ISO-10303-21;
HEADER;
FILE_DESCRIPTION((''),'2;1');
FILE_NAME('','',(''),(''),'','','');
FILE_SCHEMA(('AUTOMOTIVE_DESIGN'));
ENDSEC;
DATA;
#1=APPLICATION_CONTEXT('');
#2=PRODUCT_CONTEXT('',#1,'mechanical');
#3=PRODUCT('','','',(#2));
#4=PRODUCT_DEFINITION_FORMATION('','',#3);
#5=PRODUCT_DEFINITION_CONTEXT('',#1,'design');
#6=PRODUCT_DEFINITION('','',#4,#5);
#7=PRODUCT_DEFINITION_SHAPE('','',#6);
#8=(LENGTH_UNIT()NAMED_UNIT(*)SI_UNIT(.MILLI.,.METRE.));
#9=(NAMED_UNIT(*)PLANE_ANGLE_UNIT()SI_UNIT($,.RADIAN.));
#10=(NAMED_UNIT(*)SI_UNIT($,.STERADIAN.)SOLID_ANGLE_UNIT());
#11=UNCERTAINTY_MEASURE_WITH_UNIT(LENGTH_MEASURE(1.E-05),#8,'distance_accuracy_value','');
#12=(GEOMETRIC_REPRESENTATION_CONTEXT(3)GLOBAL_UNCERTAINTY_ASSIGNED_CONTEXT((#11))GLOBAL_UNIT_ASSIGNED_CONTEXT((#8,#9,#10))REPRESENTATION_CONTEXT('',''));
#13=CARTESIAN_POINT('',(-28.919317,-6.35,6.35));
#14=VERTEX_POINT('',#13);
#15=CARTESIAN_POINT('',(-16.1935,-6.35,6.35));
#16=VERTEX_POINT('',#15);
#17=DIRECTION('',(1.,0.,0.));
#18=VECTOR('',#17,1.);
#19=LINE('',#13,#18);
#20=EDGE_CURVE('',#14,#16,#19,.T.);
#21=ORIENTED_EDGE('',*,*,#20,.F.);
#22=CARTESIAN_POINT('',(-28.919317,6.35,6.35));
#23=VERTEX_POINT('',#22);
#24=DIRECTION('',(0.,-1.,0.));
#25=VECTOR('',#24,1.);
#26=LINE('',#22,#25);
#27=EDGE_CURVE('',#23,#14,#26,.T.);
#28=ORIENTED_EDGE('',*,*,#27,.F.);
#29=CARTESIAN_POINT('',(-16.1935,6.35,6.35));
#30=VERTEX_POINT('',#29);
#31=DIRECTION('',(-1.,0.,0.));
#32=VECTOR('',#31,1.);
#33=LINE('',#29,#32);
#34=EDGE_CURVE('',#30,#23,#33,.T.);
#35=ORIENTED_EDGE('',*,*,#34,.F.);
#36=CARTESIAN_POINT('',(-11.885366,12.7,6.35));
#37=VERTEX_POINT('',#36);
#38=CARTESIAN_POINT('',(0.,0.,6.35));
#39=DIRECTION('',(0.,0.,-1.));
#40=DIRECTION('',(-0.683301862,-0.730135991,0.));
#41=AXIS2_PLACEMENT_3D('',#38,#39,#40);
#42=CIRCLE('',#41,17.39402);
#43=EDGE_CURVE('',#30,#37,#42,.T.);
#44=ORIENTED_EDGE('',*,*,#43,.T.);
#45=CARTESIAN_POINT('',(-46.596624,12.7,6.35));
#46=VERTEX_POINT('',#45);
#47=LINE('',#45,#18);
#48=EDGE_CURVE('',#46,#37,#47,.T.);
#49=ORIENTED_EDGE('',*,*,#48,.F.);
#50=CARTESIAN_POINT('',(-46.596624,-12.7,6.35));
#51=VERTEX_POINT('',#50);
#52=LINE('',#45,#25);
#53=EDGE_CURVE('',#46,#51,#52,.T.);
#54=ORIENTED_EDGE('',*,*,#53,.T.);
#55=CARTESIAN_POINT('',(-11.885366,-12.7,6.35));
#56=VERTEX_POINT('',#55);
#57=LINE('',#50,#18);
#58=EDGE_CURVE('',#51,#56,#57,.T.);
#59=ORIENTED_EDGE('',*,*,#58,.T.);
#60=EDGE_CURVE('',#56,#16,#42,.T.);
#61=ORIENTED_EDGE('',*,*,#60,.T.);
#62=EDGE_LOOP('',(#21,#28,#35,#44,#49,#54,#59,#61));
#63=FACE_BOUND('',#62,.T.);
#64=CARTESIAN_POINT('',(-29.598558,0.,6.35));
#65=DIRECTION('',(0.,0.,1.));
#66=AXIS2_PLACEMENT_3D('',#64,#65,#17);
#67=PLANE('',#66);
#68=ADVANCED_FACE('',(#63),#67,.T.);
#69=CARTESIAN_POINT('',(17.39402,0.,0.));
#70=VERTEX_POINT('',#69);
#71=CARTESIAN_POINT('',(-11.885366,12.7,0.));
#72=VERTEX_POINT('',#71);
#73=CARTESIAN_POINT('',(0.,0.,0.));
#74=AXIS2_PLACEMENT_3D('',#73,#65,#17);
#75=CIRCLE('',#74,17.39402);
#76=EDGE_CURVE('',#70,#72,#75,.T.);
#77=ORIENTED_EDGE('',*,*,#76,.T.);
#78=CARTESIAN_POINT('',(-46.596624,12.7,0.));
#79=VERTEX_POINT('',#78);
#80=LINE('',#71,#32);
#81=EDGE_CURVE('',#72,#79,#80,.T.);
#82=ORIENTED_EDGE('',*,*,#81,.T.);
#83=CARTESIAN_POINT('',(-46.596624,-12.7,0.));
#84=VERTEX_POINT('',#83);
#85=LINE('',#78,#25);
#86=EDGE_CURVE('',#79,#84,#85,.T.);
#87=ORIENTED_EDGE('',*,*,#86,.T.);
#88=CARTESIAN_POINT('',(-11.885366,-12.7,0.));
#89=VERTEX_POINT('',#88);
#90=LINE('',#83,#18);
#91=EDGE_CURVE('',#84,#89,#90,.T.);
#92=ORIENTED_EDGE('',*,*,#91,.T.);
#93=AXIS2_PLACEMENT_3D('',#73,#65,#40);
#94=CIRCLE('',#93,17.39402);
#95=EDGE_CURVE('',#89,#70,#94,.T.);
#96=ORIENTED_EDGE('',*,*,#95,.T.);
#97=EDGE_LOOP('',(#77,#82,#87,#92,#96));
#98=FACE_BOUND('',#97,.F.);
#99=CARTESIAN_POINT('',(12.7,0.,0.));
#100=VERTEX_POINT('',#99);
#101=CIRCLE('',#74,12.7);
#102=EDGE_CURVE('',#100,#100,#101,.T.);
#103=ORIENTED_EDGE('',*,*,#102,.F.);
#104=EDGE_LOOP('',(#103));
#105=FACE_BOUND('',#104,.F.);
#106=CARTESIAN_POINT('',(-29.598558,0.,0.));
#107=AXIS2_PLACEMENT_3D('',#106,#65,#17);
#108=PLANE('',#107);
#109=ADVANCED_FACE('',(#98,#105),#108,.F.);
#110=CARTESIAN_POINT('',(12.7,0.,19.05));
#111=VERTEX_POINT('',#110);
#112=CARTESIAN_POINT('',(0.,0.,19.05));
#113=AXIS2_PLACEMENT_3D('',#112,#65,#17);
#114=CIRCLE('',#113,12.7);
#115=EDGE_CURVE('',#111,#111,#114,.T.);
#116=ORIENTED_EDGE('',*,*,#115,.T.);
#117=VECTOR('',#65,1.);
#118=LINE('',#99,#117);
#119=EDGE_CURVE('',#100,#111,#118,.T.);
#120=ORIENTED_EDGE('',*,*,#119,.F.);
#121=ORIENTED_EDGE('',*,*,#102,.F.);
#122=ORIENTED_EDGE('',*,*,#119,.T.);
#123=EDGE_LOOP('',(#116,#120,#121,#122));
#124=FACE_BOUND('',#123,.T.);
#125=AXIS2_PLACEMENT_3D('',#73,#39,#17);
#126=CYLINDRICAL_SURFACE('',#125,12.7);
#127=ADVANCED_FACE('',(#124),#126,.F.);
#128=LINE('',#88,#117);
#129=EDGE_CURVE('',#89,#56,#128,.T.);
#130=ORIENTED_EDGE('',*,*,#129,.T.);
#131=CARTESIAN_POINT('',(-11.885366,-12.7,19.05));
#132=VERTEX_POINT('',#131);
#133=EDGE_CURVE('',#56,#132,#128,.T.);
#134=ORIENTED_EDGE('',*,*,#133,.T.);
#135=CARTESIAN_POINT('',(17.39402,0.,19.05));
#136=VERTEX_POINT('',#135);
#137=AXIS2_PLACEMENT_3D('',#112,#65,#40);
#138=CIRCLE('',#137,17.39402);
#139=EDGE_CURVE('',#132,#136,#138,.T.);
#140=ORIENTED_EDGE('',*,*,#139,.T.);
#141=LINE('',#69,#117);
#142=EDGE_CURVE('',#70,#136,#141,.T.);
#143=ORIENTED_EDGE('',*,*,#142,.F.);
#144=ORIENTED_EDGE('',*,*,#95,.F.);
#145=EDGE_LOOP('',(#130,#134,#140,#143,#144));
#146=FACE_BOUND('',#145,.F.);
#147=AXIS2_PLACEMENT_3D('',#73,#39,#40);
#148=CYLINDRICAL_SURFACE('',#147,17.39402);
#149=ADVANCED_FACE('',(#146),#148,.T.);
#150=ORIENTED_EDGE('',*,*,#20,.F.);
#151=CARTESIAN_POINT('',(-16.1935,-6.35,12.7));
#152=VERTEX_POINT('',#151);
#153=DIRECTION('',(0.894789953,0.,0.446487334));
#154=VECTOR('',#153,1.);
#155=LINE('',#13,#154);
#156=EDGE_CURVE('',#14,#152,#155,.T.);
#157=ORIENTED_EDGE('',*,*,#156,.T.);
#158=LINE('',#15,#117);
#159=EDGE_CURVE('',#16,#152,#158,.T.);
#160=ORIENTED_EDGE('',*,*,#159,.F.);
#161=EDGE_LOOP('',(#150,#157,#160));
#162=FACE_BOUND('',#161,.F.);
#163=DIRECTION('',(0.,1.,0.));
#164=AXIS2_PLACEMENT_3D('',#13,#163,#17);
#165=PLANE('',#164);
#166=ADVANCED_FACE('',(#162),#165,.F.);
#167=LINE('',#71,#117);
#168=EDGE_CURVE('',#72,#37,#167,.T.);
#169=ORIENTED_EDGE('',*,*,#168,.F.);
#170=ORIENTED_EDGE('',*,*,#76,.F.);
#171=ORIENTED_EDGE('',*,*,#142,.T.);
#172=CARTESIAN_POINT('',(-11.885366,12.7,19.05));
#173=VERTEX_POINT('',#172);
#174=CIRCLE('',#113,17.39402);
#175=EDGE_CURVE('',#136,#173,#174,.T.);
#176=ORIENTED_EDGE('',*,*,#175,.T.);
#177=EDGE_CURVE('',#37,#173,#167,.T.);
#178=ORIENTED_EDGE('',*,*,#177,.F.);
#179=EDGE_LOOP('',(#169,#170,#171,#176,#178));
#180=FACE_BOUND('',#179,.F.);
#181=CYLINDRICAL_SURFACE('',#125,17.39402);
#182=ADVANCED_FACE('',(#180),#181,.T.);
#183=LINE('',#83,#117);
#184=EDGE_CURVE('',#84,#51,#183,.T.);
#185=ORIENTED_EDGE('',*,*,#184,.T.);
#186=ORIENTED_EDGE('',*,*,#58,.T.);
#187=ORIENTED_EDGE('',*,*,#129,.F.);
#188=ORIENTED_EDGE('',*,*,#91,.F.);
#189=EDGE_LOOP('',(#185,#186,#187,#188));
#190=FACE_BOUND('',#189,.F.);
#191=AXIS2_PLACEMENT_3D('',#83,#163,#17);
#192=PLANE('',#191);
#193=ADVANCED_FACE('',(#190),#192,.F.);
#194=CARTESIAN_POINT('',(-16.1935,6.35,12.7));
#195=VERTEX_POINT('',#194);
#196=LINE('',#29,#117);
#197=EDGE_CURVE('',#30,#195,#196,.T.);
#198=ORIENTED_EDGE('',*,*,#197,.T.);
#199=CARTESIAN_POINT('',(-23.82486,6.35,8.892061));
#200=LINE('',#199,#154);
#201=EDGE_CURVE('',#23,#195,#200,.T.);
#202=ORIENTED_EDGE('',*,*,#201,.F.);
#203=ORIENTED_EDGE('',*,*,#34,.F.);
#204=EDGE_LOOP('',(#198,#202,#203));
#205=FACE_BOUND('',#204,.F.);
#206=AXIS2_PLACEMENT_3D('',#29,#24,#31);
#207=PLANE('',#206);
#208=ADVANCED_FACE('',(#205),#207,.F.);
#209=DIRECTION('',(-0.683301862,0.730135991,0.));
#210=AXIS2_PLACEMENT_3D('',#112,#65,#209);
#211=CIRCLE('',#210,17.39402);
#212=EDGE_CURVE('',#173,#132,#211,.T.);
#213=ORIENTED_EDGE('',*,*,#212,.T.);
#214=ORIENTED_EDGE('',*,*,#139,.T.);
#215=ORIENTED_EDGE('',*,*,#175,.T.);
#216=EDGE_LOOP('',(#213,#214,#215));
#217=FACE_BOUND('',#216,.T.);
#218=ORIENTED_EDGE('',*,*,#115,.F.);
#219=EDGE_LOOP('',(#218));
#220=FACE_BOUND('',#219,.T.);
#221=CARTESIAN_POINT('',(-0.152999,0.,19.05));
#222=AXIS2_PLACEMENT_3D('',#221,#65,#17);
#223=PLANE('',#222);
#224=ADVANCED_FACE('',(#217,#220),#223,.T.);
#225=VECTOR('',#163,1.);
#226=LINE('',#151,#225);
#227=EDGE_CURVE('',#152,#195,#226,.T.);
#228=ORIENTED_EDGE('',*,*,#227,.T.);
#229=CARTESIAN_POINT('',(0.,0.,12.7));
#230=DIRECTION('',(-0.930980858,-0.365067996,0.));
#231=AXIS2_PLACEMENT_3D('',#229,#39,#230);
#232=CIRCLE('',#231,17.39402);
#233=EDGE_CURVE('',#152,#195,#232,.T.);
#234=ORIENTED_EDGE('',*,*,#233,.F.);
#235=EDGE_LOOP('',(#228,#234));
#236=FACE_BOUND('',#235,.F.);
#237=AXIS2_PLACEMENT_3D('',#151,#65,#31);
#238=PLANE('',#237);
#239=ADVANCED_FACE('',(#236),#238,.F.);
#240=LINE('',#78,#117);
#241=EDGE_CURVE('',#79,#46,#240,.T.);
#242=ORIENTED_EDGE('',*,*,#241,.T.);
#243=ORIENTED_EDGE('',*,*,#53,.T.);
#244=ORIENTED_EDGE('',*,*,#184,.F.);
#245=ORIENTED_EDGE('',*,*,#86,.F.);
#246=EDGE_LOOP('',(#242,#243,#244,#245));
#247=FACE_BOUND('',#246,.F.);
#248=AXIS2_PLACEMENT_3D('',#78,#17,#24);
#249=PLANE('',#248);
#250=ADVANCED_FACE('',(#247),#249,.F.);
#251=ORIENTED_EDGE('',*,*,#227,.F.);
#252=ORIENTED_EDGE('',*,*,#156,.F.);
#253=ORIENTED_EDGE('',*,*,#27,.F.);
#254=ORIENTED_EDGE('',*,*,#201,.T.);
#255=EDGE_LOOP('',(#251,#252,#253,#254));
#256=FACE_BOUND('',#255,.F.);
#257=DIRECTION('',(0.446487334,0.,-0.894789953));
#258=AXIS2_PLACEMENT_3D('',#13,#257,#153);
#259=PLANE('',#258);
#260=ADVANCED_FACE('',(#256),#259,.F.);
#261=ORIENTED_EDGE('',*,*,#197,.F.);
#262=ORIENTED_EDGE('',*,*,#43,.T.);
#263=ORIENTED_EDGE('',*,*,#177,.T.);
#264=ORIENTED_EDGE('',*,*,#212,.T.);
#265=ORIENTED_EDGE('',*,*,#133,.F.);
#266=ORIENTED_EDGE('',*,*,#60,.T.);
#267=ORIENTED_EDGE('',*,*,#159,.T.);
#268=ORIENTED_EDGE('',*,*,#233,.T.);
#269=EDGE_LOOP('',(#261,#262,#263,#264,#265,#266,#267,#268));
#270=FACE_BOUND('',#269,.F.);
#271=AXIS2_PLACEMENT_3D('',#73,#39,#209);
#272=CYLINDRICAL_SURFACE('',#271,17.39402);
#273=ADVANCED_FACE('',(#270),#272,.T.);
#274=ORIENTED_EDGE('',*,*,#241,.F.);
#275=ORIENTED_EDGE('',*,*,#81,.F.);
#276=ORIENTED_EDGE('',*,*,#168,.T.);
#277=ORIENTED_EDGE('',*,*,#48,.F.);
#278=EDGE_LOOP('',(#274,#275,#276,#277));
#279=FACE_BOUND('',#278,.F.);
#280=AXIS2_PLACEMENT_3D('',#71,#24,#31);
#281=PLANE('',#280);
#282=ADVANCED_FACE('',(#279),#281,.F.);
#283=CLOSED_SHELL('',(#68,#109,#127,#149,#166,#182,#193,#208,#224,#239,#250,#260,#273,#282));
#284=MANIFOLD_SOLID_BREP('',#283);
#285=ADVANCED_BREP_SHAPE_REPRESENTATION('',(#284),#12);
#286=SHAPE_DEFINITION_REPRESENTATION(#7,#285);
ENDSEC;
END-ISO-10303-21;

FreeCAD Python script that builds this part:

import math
import FreeCAD as App
import Part
import Sketcher

V = App.Vector
Q = App.Units.Quantity

doc = App.newDocument("Part")
body = doc.addObject("PartDesign::Body", "Body")

# Sketch on XY plane
sketch1 = body.newObject("Sketcher::SketchObject", "Sketch")
sketch1.AttachmentSupport = (doc.getObject("XY_Plane"), [""])
sketch1.MapMode = "FlatFace"
sketch1.addGeometry([
    Part.ArcOfCircle(Part.Circle(V(0, 0, 0), V(0, 0, 1), 17), math.radians(-133), math.radians(0)),
    Part.ArcOfCircle(Part.Circle(V(0, 0, 0), V(0, 0, 1), 17), math.radians(0), math.radians(133)),
    Part.ArcOfCircle(Part.Circle(V(0, 0, 0), V(0, 0, 1), 17), math.radians(133), math.radians(227)),
    Part.Circle(V(0, 0, 0), V(0, 0, 1), 13),
], False)
sketch1.addConstraint([
    Sketcher.Constraint("Tangent", 0, 2, 1, 1),
    Sketcher.Constraint("Tangent", 1, 2, 2, 1),
    Sketcher.Constraint("Tangent", 2, 2, 0, 1),
    Sketcher.Constraint("Coincident", 0, 3, -1, 1),
    Sketcher.Constraint("Coincident", 3, 3, -1, 1),
    Sketcher.Constraint("PointOnObject", 0, 2, -1),
    Sketcher.Constraint("Vertical", 1, 2, 2, 2),
    Sketcher.Constraint("Diameter", 3, Q("1 in")),
    Sketcher.Constraint("DistanceY", 2, 2, 1, 2, Q("1 in")),
    Sketcher.Constraint("Radius", 0, Q("17.39402 mm")),
])
pad1 = body.newObject("PartDesign::Pad", "Pad")
pad1.Profile = sketch1
pad1.Length = Q("0.75 in")

# Sketch on XY plane
sketch2 = body.newObject("Sketcher::SketchObject", "Sketch001")
sketch2.AttachmentSupport = (doc.getObject("XY_Plane"), [""])
sketch2.MapMode = "FlatFace"
sketch2.addGeometry([
    Part.ArcOfCircle(Part.Circle(V(0, 0, 0), V(0, 0, 1), 17), math.radians(133), math.radians(227)),
    Part.LineSegment(V(-12, 13, 0), V(-47, 13, 0)),
    Part.LineSegment(V(-47, 13, 0), V(-47, -13, 0)),
    Part.LineSegment(V(-47, -13, 0), V(-12, -13, 0)),
], False)
sketch2.addConstraint([
    Sketcher.Constraint("Coincident", 0, 1, 1, 1),
    Sketcher.Constraint("Coincident", 1, 2, 2, 1),
    Sketcher.Constraint("Coincident", 2, 2, 3, 1),
    Sketcher.Constraint("Coincident", 3, 2, 0, 2),
    Sketcher.Constraint("Horizontal", 1),
    Sketcher.Constraint("Vertical", 2),
    Sketcher.Constraint("Horizontal", 3),
    Sketcher.Constraint("Coincident", 0, 3, -1, 1),
    Sketcher.Constraint("Vertical", 0, 1, 3, 2),
    Sketcher.Constraint("DistanceY", 2, 2, 2, 1, Q("1 in")),
    Sketcher.Constraint("Radius", 0, Q("17.39402 mm")),
    Sketcher.Constraint("DistanceX", 1, 2, 1, 1, Q("34.711258 mm")),
])
pad2 = body.newObject("PartDesign::Pad", "Pad001")
pad2.Profile = sketch2
pad2.Length = Q("0.25 in")

# Sketch on XY plane
sketch3 = body.newObject("Sketcher::SketchObject", "Sketch002")
sketch3.AttachmentSupport = (doc.getObject("XY_Plane"), [""])
sketch3.MapMode = "FlatFace"
sketch3.AttachmentOffset = App.Placement(V(0, 0, 0.25 * 25.4), App.Rotation())
sketch3.addGeometry([
    Part.LineSegment(V(-29, 6, 0), V(-29, -6, 0)),
    Part.LineSegment(V(-29, -6, 0), V(-16, -6, 0)),
    Part.ArcOfCircle(Part.Circle(V(0, 0, 0), V(0, 0, 1), 17), math.radians(159), math.radians(201)),
    Part.LineSegment(V(-16, 6, 0), V(-29, 6, 0)),
], False)
sketch3.addConstraint([
    Sketcher.Constraint("Coincident", 0, 2, 1, 1),
    Sketcher.Constraint("Coincident", 1, 2, 2, 2),
    Sketcher.Constraint("Coincident", 2, 1, 3, 1),
    Sketcher.Constraint("Coincident", 3, 2, 0, 1),
    Sketcher.Constraint("Vertical", 0),
    Sketcher.Constraint("Horizontal", 1),
    Sketcher.Constraint("Horizontal", 3),
    Sketcher.Constraint("Coincident", 2, 3, -1, 1),
    Sketcher.Constraint("Vertical", 1, 2, 2, 1),
    Sketcher.Constraint("DistanceY", 0, 2, 0, 1, Q("0.5 in")),
    Sketcher.Constraint("Radius", 2, Q("17.39402 mm")),
    Sketcher.Constraint("DistanceX", 1, 1, 1, 2, Q("12.725817 mm")),
])
pad3 = body.newObject("PartDesign::Pad", "Pad002")
pad3.Profile = sketch3
pad3.Length = Q("0.25 in")

# Sketch on XZ plane
sketch4 = body.newObject("Sketcher::SketchObject", "Sketch003")
sketch4.AttachmentSupport = (doc.getObject("XZ_Plane"), [""])
sketch4.MapMode = "FlatFace"
sketch4.AttachmentOffset = App.Placement(V(0, 0, 0.25 * 25.4), App.Rotation())
sketch4.addGeometry([
    Part.LineSegment(V(-29, 13, 0), V(-29, 6, 0)),
    Part.LineSegment(V(-29, 6, 0), V(-16, 13, 0)),
    Part.LineSegment(V(-16, 13, 0), V(-29, 13, 0)),
], False)
sketch4.addConstraint([
    Sketcher.Constraint("Coincident", 0, 2, 1, 1),
    Sketcher.Constraint("Coincident", 1, 2, 2, 1),
    Sketcher.Constraint("Coincident", 2, 2, 0, 1),
    Sketcher.Constraint("Vertical", 0),
    Sketcher.Constraint("Horizontal", 2),
    Sketcher.Constraint("DistanceY", 0, 2, 0, 1, Q("0.25 in")),
    Sketcher.Constraint("DistanceY", -1, 1, 1, 2, Q("0.5 in")),
    Sketcher.Constraint("DistanceX", 1, 2, -1, 1, Q("16.1935 mm")),
    Sketcher.Constraint("DistanceX", 2, 2, 2, 1, Q("12.725817 mm")),
])
pocket1 = body.newObject("PartDesign::Pocket", "Pocket")
pocket1.Profile = sketch4
pocket1.Length = Q("1 in")

doc.recompute()
